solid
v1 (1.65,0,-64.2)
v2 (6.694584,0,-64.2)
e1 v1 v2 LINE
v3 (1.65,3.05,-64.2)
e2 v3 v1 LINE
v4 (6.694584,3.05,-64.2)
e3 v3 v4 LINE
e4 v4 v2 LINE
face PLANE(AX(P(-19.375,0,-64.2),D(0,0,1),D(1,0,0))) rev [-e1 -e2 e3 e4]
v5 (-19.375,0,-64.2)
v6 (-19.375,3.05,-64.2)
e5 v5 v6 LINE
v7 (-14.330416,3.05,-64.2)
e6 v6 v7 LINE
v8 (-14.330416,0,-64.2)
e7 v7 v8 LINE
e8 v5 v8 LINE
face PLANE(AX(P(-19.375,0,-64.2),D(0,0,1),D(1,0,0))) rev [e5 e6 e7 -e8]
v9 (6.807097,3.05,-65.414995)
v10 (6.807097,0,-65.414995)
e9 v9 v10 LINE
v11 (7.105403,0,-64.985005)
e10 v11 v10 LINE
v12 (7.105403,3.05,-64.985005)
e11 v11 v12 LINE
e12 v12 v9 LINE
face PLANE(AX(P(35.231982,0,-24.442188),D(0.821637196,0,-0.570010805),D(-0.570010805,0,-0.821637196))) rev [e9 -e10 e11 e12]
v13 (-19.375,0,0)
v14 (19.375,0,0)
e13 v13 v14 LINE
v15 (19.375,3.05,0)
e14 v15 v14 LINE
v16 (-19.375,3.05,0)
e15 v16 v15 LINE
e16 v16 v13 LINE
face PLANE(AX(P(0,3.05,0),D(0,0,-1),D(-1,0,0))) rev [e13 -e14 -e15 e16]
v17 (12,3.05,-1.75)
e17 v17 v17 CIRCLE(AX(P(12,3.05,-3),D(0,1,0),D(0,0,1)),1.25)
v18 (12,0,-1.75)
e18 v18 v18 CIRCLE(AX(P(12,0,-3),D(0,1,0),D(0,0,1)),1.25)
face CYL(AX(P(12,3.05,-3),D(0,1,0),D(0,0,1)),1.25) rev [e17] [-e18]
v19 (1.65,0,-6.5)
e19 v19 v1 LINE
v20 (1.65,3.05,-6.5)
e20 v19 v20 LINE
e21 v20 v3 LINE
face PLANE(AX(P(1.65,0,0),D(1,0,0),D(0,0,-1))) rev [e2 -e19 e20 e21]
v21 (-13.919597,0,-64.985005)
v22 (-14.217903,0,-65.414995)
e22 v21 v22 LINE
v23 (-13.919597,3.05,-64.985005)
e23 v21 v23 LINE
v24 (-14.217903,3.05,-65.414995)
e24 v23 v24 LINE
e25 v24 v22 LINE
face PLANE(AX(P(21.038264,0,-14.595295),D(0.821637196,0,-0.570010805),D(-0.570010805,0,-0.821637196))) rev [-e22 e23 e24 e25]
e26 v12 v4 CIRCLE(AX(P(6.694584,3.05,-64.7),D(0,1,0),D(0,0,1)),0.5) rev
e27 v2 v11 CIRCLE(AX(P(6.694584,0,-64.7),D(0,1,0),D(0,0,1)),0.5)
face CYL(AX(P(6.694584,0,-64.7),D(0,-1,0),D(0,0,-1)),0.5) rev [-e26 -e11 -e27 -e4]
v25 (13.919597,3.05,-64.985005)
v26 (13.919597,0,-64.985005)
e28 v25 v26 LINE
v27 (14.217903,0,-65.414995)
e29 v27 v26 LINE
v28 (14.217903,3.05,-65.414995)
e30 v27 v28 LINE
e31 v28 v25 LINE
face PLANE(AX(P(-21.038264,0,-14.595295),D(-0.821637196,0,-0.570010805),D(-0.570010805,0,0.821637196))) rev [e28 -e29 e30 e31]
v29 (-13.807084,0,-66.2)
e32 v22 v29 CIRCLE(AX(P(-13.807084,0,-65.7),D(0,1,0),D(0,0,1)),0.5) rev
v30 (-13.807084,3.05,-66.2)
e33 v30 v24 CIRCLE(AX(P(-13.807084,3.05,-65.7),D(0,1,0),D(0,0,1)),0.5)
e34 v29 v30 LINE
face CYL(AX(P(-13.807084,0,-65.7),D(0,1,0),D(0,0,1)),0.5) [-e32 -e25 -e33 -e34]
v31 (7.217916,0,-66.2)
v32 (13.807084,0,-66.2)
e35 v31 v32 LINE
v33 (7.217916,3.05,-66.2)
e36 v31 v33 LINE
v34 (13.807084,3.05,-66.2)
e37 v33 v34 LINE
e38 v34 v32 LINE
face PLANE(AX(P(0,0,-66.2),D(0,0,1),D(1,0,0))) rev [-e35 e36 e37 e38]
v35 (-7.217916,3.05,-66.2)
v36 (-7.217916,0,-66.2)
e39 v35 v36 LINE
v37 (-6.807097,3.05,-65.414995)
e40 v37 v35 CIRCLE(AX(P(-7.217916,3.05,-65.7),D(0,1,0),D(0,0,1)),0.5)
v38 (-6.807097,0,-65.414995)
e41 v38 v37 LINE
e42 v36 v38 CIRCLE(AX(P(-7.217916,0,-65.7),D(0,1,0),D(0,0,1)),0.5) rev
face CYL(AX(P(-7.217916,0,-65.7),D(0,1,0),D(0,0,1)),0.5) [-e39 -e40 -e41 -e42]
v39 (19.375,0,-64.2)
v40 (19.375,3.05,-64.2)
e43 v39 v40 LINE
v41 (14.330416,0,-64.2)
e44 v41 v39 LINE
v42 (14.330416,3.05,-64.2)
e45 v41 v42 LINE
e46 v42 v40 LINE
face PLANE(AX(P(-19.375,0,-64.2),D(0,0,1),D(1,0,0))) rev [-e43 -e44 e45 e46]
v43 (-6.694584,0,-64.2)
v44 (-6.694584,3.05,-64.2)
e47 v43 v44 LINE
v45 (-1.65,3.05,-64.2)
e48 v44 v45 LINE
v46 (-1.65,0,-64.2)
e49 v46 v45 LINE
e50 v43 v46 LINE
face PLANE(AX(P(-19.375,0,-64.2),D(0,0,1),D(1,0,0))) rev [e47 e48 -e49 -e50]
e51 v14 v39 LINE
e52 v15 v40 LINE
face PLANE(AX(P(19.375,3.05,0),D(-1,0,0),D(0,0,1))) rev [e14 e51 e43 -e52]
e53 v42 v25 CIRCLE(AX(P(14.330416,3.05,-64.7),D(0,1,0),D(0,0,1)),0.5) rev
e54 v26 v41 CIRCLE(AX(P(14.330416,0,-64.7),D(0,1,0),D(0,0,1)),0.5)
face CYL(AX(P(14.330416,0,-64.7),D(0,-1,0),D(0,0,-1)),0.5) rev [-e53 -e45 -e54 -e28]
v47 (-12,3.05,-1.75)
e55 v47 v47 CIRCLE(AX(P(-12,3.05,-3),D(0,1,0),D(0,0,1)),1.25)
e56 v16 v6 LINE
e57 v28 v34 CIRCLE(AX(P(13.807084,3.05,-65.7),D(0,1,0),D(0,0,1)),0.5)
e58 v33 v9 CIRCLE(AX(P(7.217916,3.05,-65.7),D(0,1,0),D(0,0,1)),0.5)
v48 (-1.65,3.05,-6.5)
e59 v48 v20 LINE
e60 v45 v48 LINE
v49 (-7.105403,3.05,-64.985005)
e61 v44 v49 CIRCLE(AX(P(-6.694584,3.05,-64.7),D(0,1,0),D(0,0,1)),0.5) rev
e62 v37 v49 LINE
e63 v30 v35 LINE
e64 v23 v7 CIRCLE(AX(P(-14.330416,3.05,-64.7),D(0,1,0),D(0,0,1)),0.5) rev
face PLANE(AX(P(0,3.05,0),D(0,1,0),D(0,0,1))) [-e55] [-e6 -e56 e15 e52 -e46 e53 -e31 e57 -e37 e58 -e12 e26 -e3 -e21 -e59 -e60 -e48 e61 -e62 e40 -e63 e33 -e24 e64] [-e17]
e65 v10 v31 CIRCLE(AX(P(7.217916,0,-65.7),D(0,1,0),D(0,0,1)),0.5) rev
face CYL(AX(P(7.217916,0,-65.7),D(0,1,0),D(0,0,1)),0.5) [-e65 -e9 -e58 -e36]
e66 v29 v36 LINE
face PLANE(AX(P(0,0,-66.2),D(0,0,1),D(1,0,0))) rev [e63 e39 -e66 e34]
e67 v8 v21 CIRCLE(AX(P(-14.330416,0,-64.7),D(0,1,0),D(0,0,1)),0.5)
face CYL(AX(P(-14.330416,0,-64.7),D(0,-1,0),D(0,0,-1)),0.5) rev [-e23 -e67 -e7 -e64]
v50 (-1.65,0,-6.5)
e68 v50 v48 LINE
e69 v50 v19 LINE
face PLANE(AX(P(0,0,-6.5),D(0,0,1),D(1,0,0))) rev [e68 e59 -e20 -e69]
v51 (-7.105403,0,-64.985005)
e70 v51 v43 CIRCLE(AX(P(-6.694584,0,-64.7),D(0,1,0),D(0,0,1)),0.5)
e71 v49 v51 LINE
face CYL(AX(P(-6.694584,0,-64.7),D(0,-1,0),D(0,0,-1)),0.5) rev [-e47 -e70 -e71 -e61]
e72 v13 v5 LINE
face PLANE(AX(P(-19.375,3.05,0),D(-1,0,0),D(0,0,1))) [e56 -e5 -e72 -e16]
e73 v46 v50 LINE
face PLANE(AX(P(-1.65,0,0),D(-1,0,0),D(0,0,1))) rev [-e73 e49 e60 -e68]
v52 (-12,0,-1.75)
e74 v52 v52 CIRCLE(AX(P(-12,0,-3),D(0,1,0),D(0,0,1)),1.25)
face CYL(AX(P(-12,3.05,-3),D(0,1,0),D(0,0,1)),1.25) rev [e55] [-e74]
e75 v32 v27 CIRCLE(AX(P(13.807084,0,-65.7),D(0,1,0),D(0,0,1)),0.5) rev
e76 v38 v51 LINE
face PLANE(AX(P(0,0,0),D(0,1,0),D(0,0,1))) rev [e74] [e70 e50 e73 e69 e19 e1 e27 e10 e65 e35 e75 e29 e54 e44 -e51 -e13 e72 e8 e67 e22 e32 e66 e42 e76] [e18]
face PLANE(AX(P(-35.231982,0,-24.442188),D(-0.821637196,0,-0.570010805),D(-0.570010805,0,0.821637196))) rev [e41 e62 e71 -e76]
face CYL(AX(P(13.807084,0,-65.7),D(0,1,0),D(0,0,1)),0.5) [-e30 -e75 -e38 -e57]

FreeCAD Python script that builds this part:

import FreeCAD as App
import Part
import Sketcher
from FreeCAD import Vector
Q = App.Units.Quantity


def edges_at(feature, points):
    """Names of the edges that pass closest to the given points."""
    edges = feature.Shape.Edges
    near = lambda p: min(range(len(edges)), key=lambda i: edges[i].distToShape(Part.Vertex(*p))[0])
    return sorted({f"Edge{near(p) + 1}" for p in points})

doc = App.newDocument("Part")
params = doc.addObject("Spreadsheet::Sheet", "Params")
for row, (alias, value) in enumerate([
    ("sketch1_height", "72.5 mm"),
    ("sketch1_width", "38.75 mm"),
    ("pad1_length", "3.05 mm"),
    ("sketch2_height", "1 mm"),
    ("sketch2_width", "3.3 mm"),
    ("sketch2_height2", "61.8 mm"),
    ("sketch3_height", "8.3 mm"),
    ("sketch3_width", "38.75 mm"),
    ("sketch4_width", "8.5 mm"),
    ("pad2_length", "3.05 mm"),
    ("fillet_radius", "0.5 mm"),
    ("sketch5_diameter", "2.5 mm"),
    ("hole_diameter", "2.5 mm"),
], start=1):
    params.set(f"A{row}", alias)
    params.set(f"B{row}", "=" + value)
    params.setAlias(f"B{row}", alias)

body = doc.addObject("PartDesign::Body", "Body")

sketch1 = body.newObject("Sketcher::SketchObject", "Sketch")
sketch1.AttachmentSupport = (doc.getObject("XZ_Plane"), [""])
sketch1.MapMode = "FlatFace"
sketch1.addGeometry(Part.LineSegment(Vector(-19, -72, 0), Vector(-19, 0, 0)), False)
sketch1.addGeometry(Part.LineSegment(Vector(-19, 0, 0), Vector(19, 0, 0)), False)
sketch1.addGeometry(Part.LineSegment(Vector(19, 0, 0), Vector(19, -72, 0)), False)
sketch1.addGeometry(Part.LineSegment(Vector(19, -72, 0), Vector(-19, -72, 0)), False)
sketch1.addConstraint(Sketcher.Constraint("Coincident", 0, 2, 1, 1))
sketch1.addConstraint(Sketcher.Constraint("Coincident", 1, 2, 2, 1))
sketch1.addConstraint(Sketcher.Constraint("Coincident", 2, 2, 3, 1))
sketch1.addConstraint(Sketcher.Constraint("Coincident", 3, 2, 0, 1))
sketch1.addConstraint(Sketcher.Constraint("Vertical", 0))
sketch1.addConstraint(Sketcher.Constraint("Horizontal", 1))
sketch1.addConstraint(Sketcher.Constraint("Vertical", 2))
sketch1.addConstraint(Sketcher.Constraint("Horizontal", 3))
sketch1.addConstraint(Sketcher.Constraint("Symmetric", 0, 2, 1, 2, -1, 1))
sketch1.addConstraint(Sketcher.Constraint("DistanceY", 0, 1, 0, 2, Q("72.5 mm")))
sketch1.addConstraint(Sketcher.Constraint("DistanceX", 1, 1, 1, 2, Q("38.75 mm")))
sketch1.setExpression("Constraints[9]", "Params.sketch1_height")
sketch1.setExpression("Constraints[10]", "Params.sketch1_width")
pad1 = body.newObject("PartDesign::Pad", "Pad")
pad1.Profile = sketch1
pad1.setExpression("Length", "Params.pad1_length")
pad1.Reversed = True

sketch2 = body.newObject("Sketcher::SketchObject", "Sketch001")
sketch2.AttachmentSupport = (doc.getObject("XZ_Plane"), [""])
sketch2.MapMode = "FlatFace"
sketch2.AttachmentOffset = App.Placement(Vector(0, 0, -3.05), App.Rotation())
sketch2.addGeometry(Part.LineSegment(Vector(-1.6, -70.5, 0), Vector(-1.6, -69.5, 0)), False)
sketch2.addGeometry(Part.LineSegment(Vector(-1.6, -69.5, 0), Vector(1.6, -69.5, 0)), False)
sketch2.addGeometry(Part.LineSegment(Vector(1.6, -69.5, 0), Vector(1.6, -70.5, 0)), False)
sketch2.addGeometry(Part.LineSegment(Vector(1.6, -70.5, 0), Vector(-1.6, -70.5, 0)), False)
sketch2.addGeometry(Part.LineSegment(Vector(-1.6, -68.3, 0), Vector(-1.6, -6.5, 0)), False)
sketch2.addGeometry(Part.LineSegment(Vector(-1.6, -6.5, 0), Vector(1.6, -6.5, 0)), False)
sketch2.addGeometry(Part.LineSegment(Vector(1.6, -6.5, 0), Vector(1.6, -68.3, 0)), False)
sketch2.addGeometry(Part.LineSegment(Vector(1.6, -68.3, 0), Vector(-1.6, -68.3, 0)), False)
sketch2.addConstraint(Sketcher.Constraint("Coincident", 0, 2, 1, 1))
sketch2.addConstraint(Sketcher.Constraint("Coincident", 1, 2, 2, 1))
sketch2.addConstraint(Sketcher.Constraint("Coincident", 2, 2, 3, 1))
sketch2.addConstraint(Sketcher.Constraint("Coincident", 3, 2, 0, 1))
sketch2.addConstraint(Sketcher.Constraint("Coincident", 4, 2, 5, 1))
sketch2.addConstraint(Sketcher.Constraint("Coincident", 5, 2, 6, 1))
sketch2.addConstraint(Sketcher.Constraint("Coincident", 6, 2, 7, 1))
sketch2.addConstraint(Sketcher.Constraint("Coincident", 7, 2, 4, 1))
sketch2.addConstraint(Sketcher.Constraint("Vertical", 0))
sketch2.addConstraint(Sketcher.Constraint("Horizontal", 1))
sketch2.addConstraint(Sketcher.Constraint("Vertical", 2))
sketch2.addConstraint(Sketcher.Constraint("Horizontal", 3))
sketch2.addConstraint(Sketcher.Constraint("Vertical", 4))
sketch2.addConstraint(Sketcher.Constraint("Horizontal", 5))
sketch2.addConstraint(Sketcher.Constraint("Vertical", 6))
sketch2.addConstraint(Sketcher.Constraint("Horizontal", 7))
sketch2.addConstraint(Sketcher.Constraint("Vertical", 3, 2, 4, 2))
sketch2.addConstraint(Sketcher.Constraint("Vertical", 2, 2, 5, 2))
sketch2.addConstraint(Sketcher.Constraint("DistanceY", 0, 1, 0, 2, Q("1 mm")))
sketch2.addConstraint(Sketcher.Constraint("DistanceX", 1, 1, 1, 2, Q("3.3 mm")))
sketch2.addConstraint(Sketcher.Constraint("DistanceY", 4, 1, 4, 2, Q("61.8 mm")))
sketch2.addConstraint(Sketcher.Constraint("DistanceY", 0, 2, 4, 2, Q("63 mm")))
sketch2.addConstraint(Sketcher.Constraint("DistanceY", 0, 2, -1, 1, Q("69.5 mm")))
sketch2.addConstraint(Sketcher.Constraint("DistanceX", 0, 2, -1, 1, Q("1.65 mm")))
sketch2.setExpression("Constraints[18]", "Params.sketch2_height")
sketch2.setExpression("Constraints[19]", "Params.sketch2_width")
sketch2.setExpression("Constraints[20]", "Params.sketch2_height2")
pocket1 = body.newObject("PartDesign::Pocket", "Pocket")
pocket1.Profile = sketch2
pocket1.Type = "ThroughAll"
pocket1.Reversed = True

sketch3 = body.newObject("Sketcher::SketchObject", "Sketch002")
sketch3.AttachmentSupport = (doc.getObject("XZ_Plane"), [""])
sketch3.MapMode = "FlatFace"
sketch3.AttachmentOffset = App.Placement(Vector(0, 0, -3.05), App.Rotation())
sketch3.addGeometry(Part.LineSegment(Vector(-19, -72, 0), Vector(-19, -64, 0)), False)
sketch3.addGeometry(Part.LineSegment(Vector(-19, -64, 0), Vector(19, -64, 0)), False)
sketch3.addGeometry(Part.LineSegment(Vector(19, -64, 0), Vector(19, -72, 0)), False)
sketch3.addGeometry(Part.LineSegment(Vector(19, -72, 0), Vector(-19, -72, 0)), False)
sketch3.addConstraint(Sketcher.Constraint("Coincident", 0, 2, 1, 1))
sketch3.addConstraint(Sketcher.Constraint("Coincident", 1, 2, 2, 1))
sketch3.addConstraint(Sketcher.Constraint("Coincident", 2, 2, 3, 1))
sketch3.addConstraint(Sketcher.Constraint("Coincident", 3, 2, 0, 1))
sketch3.addConstraint(Sketcher.Constraint("Vertical", 0))
sketch3.addConstraint(Sketcher.Constraint("Horizontal", 1))
sketch3.addConstraint(Sketcher.Constraint("Vertical", 2))
sketch3.addConstraint(Sketcher.Constraint("Horizontal", 3))
sketch3.addConstraint(Sketcher.Constraint("DistanceY", 0, 1, 0, 2, Q("8.3 mm")))
sketch3.addConstraint(Sketcher.Constraint("DistanceX", 1, 1, 1, 2, Q("38.75 mm")))
sketch3.addConstraint(Sketcher.Constraint("DistanceY", 0, 2, -1, 1, Q("64.2 mm")))
sketch3.addConstraint(Sketcher.Constraint("DistanceX", 0, 2, -1, 1, Q("19.375 mm")))
sketch3.setExpression("Constraints[8]", "Params.sketch3_height")
sketch3.setExpression("Constraints[9]", "Params.sketch3_width")
pocket2 = body.newObject("PartDesign::Pocket", "Pocket001")
pocket2.Profile = sketch3
pocket2.Type = "ThroughAll"
pocket2.Reversed = True

sketch4 = body.newObject("Sketcher::SketchObject", "Sketch003")
sketch4.AttachmentSupport = (doc.getObject("XZ_Plane"), [""])
sketch4.MapMode = "FlatFace"
sketch4.AttachmentOffset = App.Placement(Vector(0, 0, -3.05), App.Rotation())
sketch4.addGeometry(Part.LineSegment(Vector(-14.8, -66.2, 0), Vector(-13.4, -64.2, 0)), False)
sketch4.addGeometry(Part.LineSegment(Vector(-13.4, -64.2, 0), Vector(-7.7, -64.2, 0)), False)
sketch4.addGeometry(Part.LineSegment(Vector(-7.7, -64.2, 0), Vector(-6.3, -66.2, 0)), False)
sketch4.addGeometry(Part.LineSegment(Vector(-6.3, -66.2, 0), Vector(-14.8, -66.2, 0)), False)
sketch4.addGeometry(Part.LineSegment(Vector(6.3, -66.2, 0), Vector(7.7, -64.2, 0)), False)
sketch4.addGeometry(Part.LineSegment(Vector(7.7, -64.2, 0), Vector(13.4, -64.2, 0)), False)
sketch4.addGeometry(Part.LineSegment(Vector(13.4, -64.2, 0), Vector(14.8, -66.2, 0)), False)
sketch4.addGeometry(Part.LineSegment(Vector(14.8, -66.2, 0), Vector(6.3, -66.2, 0)), False)
sketch4.addConstraint(Sketcher.Constraint("Coincident", 0, 2, 1, 1))
sketch4.addConstraint(Sketcher.Constraint("Coincident", 1, 2, 2, 1))
sketch4.addConstraint(Sketcher.Constraint("Coincident", 2, 2, 3, 1))
sketch4.addConstraint(Sketcher.Constraint("Coincident", 3, 2, 0, 1))
sketch4.addConstraint(Sketcher.Constraint("Coincident", 4, 2, 5, 1))
sketch4.addConstraint(Sketcher.Constraint("Coincident", 5, 2, 6, 1))
sketch4.addConstraint(Sketcher.Constraint("Coincident", 6, 2, 7, 1))
sketch4.addConstraint(Sketcher.Constraint("Coincident", 7, 2, 4, 1))
sketch4.addConstraint(Sketcher.Constraint("Horizontal", 1))
sketch4.addConstraint(Sketcher.Constraint("Horizontal", 3))
sketch4.addConstraint(Sketcher.Constraint("Horizontal", 5))
sketch4.addConstraint(Sketcher.Constraint("Horizontal", 7))
sketch4.addConstraint(Sketcher.Constraint("Symmetric", 1, 2, 4, 2, -2))
sketch4.addConstraint(Sketcher.Constraint("Symmetric", 3, 2, 6, 2, -2))
sketch4.addConstraint(Sketcher.Constraint("Parallel", 0, 4))
sketch4.addConstraint(Sketcher.Constraint("Parallel", 2, 6))
sketch4.addConstraint(Sketcher.Constraint("Equal", 1, 5))
sketch4.addConstraint(Sketcher.Constraint("DistanceX", 3, 2, 3, 1, Q("8.5 mm")))
sketch4.addConstraint(Sketcher.Constraint("DistanceY", 2, 2, 1, 2, Q("2 mm")))
sketch4.addConstraint(Sketcher.Constraint("DistanceY", 0, 2, -1, 1, Q("64.2 mm")))
sketch4.addConstraint(Sketcher.Constraint("DistanceX", 1, 2, 4, 2, Q("15.3 mm")))
sketch4.addConstraint(Sketcher.Constraint("DistanceX", 1, 1, 1, 2, Q("5.725 mm")))
sketch4.setExpression("Constraints[17]", "Params.sketch4_width")
pad2 = body.newObject("PartDesign::Pad", "Pad001")
pad2.Profile = sketch4
pad2.setExpression("Length", "Params.pad2_length")
doc.recompute()

fillet = body.newObject("PartDesign::Fillet", "Fillet")
fillet.Base = (pad2, edges_at(pad2, [
    (14.762, 1.525, -66.2),
    (13.375, 1.525, -64.2),
    (7.65, 1.525, -64.2),
    (6.263, 1.525, -66.2),
    (-6.263, 1.525, -66.2),
    (-7.65, 1.525, -64.2),
    (-13.375, 1.525, -64.2),
    (-14.762, 1.525, -66.2),
]))
fillet.setExpression("Radius", "Params.fillet_radius")

sketch5 = body.newObject("Sketcher::SketchObject", "Sketch004")
sketch5.AttachmentSupport = (doc.getObject("XZ_Plane"), [""])
sketch5.MapMode = "FlatFace"
sketch5.AttachmentOffset = App.Placement(Vector(0, 0, -3.05), App.Rotation())
sketch5.addGeometry(Part.Circle(Vector(-12, -3, 0), Vector(0, 0, 1), 1.2), False)
sketch5.addGeometry(Part.Circle(Vector(12, -3, 0), Vector(0, 0, 1), 1.2), False)
sketch5.addConstraint(Sketcher.Constraint("Equal", 0, 1))
sketch5.addConstraint(Sketcher.Constraint("Symmetric", 0, 3, 1, 3, -2))
sketch5.addConstraint(Sketcher.Constraint("Diameter", 0, Q("2.5 mm")))
sketch5.addConstraint(Sketcher.Constraint("DistanceX", 0, 3, -1, 1, Q("12 mm")))
sketch5.addConstraint(Sketcher.Constraint("DistanceY", 0, 3, -1, 1, Q("3 mm")))
sketch5.setExpression("Constraints[2]", "Params.sketch5_diameter")
doc.recompute()
hole = body.newObject("PartDesign::Hole", "Hole")
hole.Profile = sketch5
hole.ThreadType = "None"
hole.setExpression("Diameter", "Params.hole_diameter")
hole.DepthType = "ThroughAll"
hole.Reversed = True

doc.recompute()
